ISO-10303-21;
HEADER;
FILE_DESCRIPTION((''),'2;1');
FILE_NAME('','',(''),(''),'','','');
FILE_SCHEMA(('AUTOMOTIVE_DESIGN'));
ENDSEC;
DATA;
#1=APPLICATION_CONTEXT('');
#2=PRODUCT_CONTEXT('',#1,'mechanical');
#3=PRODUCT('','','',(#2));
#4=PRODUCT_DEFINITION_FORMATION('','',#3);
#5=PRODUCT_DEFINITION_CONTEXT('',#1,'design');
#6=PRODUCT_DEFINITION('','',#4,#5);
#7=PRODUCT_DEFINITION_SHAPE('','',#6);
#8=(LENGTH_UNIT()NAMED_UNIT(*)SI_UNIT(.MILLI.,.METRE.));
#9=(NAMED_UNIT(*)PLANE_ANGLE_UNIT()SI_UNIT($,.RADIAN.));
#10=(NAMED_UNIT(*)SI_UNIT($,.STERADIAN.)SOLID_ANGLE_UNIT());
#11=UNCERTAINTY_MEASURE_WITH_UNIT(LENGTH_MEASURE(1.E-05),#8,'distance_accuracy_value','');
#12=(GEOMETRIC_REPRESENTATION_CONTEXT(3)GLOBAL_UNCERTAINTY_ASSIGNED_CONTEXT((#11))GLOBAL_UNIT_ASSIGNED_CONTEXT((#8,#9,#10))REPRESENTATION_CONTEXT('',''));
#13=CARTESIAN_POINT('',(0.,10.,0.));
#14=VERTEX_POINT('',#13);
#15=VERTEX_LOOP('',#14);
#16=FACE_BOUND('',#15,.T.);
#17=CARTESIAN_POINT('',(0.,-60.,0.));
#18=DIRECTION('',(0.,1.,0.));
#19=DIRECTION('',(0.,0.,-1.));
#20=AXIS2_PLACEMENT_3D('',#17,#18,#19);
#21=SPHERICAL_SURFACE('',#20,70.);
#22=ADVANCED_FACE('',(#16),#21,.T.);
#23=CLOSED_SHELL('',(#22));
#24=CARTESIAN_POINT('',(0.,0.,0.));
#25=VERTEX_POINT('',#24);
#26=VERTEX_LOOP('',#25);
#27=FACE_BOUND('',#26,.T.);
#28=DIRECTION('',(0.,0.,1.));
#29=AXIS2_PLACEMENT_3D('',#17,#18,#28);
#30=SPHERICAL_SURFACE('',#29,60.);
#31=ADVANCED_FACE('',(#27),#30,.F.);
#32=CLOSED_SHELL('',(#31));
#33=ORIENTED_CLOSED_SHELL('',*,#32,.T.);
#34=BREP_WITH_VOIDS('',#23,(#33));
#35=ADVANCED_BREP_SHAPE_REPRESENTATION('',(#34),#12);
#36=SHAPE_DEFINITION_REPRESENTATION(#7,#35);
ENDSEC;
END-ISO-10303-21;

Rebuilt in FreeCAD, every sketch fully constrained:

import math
import FreeCAD as App
import Part
import Sketcher
Q = App.Units.Quantity

doc = App.newDocument("Part")
params = doc.addObject("Spreadsheet::Sheet", "Params")
for row, (alias, value) in enumerate([
    ("sketch1_radius", "60 mm"),
    ("sketch1_radius2", "70 mm"),
    ("revolution_angle", "360 deg"),
], start=1):
    params.set(f"A{row}", alias)
    params.set(f"B{row}", "=" + value)
    params.setAlias(f"B{row}", alias)

body = doc.addObject("PartDesign::Body", "Body")

# Sketch on YZ plane
sketch1 = body.newObject("Sketcher::SketchObject", "Sketch")
sketch1.AttachmentSupport = (doc.getObject("YZ_Plane"), [""])
sketch1.MapMode = "FlatFace"
sketch1.addGeometry([
    Part.LineSegment(App.Vector(10, 0, 0), App.Vector(0, 0, 0)),
    Part.ArcOfCircle(Part.Circle(App.Vector(-60, 0, 0), App.Vector(0, 0, 1), 60), math.radians(180), math.radians(360)),
    Part.LineSegment(App.Vector(-120, 0, 0), App.Vector(-130, 0, 0)),
    Part.ArcOfCircle(Part.Circle(App.Vector(-60, 0, 0), App.Vector(0, 0, 1), 70), math.radians(180), math.radians(360)),
], False)
sketch1.addConstraint([
    Sketcher.Constraint("Coincident", 0, 2, 1, 2),
    Sketcher.Constraint("Coincident", 1, 1, 2, 1),
    Sketcher.Constraint("Coincident", 2, 2, 3, 1),
    Sketcher.Constraint("Coincident", 3, 2, 0, 1),
    Sketcher.Constraint("Horizontal", 0),
    Sketcher.Constraint("Horizontal", 2),
    Sketcher.Constraint("Coincident", 0, 2, -1, 1),
    Sketcher.Constraint("Coincident", 3, 3, 1, 3),
    Sketcher.Constraint("PointOnObject", 1, 3, -1),
    Sketcher.Constraint("PointOnObject", 1, 1, -1),
    Sketcher.Constraint("Radius", 1, Q("60 mm")),
    Sketcher.Constraint("Radius", 3, Q("70 mm")),
])
sketch1.setExpression("Constraints[10]", "Params.sketch1_radius")
sketch1.setExpression("Constraints[11]", "Params.sketch1_radius2")
revolution = body.newObject("PartDesign::Revolution", "Revolution")
revolution.Profile = sketch1
revolution.ReferenceAxis = (sketch1, ["H_Axis"])
revolution.setExpression("Angle", "Params.revolution_angle")

doc.recompute()
